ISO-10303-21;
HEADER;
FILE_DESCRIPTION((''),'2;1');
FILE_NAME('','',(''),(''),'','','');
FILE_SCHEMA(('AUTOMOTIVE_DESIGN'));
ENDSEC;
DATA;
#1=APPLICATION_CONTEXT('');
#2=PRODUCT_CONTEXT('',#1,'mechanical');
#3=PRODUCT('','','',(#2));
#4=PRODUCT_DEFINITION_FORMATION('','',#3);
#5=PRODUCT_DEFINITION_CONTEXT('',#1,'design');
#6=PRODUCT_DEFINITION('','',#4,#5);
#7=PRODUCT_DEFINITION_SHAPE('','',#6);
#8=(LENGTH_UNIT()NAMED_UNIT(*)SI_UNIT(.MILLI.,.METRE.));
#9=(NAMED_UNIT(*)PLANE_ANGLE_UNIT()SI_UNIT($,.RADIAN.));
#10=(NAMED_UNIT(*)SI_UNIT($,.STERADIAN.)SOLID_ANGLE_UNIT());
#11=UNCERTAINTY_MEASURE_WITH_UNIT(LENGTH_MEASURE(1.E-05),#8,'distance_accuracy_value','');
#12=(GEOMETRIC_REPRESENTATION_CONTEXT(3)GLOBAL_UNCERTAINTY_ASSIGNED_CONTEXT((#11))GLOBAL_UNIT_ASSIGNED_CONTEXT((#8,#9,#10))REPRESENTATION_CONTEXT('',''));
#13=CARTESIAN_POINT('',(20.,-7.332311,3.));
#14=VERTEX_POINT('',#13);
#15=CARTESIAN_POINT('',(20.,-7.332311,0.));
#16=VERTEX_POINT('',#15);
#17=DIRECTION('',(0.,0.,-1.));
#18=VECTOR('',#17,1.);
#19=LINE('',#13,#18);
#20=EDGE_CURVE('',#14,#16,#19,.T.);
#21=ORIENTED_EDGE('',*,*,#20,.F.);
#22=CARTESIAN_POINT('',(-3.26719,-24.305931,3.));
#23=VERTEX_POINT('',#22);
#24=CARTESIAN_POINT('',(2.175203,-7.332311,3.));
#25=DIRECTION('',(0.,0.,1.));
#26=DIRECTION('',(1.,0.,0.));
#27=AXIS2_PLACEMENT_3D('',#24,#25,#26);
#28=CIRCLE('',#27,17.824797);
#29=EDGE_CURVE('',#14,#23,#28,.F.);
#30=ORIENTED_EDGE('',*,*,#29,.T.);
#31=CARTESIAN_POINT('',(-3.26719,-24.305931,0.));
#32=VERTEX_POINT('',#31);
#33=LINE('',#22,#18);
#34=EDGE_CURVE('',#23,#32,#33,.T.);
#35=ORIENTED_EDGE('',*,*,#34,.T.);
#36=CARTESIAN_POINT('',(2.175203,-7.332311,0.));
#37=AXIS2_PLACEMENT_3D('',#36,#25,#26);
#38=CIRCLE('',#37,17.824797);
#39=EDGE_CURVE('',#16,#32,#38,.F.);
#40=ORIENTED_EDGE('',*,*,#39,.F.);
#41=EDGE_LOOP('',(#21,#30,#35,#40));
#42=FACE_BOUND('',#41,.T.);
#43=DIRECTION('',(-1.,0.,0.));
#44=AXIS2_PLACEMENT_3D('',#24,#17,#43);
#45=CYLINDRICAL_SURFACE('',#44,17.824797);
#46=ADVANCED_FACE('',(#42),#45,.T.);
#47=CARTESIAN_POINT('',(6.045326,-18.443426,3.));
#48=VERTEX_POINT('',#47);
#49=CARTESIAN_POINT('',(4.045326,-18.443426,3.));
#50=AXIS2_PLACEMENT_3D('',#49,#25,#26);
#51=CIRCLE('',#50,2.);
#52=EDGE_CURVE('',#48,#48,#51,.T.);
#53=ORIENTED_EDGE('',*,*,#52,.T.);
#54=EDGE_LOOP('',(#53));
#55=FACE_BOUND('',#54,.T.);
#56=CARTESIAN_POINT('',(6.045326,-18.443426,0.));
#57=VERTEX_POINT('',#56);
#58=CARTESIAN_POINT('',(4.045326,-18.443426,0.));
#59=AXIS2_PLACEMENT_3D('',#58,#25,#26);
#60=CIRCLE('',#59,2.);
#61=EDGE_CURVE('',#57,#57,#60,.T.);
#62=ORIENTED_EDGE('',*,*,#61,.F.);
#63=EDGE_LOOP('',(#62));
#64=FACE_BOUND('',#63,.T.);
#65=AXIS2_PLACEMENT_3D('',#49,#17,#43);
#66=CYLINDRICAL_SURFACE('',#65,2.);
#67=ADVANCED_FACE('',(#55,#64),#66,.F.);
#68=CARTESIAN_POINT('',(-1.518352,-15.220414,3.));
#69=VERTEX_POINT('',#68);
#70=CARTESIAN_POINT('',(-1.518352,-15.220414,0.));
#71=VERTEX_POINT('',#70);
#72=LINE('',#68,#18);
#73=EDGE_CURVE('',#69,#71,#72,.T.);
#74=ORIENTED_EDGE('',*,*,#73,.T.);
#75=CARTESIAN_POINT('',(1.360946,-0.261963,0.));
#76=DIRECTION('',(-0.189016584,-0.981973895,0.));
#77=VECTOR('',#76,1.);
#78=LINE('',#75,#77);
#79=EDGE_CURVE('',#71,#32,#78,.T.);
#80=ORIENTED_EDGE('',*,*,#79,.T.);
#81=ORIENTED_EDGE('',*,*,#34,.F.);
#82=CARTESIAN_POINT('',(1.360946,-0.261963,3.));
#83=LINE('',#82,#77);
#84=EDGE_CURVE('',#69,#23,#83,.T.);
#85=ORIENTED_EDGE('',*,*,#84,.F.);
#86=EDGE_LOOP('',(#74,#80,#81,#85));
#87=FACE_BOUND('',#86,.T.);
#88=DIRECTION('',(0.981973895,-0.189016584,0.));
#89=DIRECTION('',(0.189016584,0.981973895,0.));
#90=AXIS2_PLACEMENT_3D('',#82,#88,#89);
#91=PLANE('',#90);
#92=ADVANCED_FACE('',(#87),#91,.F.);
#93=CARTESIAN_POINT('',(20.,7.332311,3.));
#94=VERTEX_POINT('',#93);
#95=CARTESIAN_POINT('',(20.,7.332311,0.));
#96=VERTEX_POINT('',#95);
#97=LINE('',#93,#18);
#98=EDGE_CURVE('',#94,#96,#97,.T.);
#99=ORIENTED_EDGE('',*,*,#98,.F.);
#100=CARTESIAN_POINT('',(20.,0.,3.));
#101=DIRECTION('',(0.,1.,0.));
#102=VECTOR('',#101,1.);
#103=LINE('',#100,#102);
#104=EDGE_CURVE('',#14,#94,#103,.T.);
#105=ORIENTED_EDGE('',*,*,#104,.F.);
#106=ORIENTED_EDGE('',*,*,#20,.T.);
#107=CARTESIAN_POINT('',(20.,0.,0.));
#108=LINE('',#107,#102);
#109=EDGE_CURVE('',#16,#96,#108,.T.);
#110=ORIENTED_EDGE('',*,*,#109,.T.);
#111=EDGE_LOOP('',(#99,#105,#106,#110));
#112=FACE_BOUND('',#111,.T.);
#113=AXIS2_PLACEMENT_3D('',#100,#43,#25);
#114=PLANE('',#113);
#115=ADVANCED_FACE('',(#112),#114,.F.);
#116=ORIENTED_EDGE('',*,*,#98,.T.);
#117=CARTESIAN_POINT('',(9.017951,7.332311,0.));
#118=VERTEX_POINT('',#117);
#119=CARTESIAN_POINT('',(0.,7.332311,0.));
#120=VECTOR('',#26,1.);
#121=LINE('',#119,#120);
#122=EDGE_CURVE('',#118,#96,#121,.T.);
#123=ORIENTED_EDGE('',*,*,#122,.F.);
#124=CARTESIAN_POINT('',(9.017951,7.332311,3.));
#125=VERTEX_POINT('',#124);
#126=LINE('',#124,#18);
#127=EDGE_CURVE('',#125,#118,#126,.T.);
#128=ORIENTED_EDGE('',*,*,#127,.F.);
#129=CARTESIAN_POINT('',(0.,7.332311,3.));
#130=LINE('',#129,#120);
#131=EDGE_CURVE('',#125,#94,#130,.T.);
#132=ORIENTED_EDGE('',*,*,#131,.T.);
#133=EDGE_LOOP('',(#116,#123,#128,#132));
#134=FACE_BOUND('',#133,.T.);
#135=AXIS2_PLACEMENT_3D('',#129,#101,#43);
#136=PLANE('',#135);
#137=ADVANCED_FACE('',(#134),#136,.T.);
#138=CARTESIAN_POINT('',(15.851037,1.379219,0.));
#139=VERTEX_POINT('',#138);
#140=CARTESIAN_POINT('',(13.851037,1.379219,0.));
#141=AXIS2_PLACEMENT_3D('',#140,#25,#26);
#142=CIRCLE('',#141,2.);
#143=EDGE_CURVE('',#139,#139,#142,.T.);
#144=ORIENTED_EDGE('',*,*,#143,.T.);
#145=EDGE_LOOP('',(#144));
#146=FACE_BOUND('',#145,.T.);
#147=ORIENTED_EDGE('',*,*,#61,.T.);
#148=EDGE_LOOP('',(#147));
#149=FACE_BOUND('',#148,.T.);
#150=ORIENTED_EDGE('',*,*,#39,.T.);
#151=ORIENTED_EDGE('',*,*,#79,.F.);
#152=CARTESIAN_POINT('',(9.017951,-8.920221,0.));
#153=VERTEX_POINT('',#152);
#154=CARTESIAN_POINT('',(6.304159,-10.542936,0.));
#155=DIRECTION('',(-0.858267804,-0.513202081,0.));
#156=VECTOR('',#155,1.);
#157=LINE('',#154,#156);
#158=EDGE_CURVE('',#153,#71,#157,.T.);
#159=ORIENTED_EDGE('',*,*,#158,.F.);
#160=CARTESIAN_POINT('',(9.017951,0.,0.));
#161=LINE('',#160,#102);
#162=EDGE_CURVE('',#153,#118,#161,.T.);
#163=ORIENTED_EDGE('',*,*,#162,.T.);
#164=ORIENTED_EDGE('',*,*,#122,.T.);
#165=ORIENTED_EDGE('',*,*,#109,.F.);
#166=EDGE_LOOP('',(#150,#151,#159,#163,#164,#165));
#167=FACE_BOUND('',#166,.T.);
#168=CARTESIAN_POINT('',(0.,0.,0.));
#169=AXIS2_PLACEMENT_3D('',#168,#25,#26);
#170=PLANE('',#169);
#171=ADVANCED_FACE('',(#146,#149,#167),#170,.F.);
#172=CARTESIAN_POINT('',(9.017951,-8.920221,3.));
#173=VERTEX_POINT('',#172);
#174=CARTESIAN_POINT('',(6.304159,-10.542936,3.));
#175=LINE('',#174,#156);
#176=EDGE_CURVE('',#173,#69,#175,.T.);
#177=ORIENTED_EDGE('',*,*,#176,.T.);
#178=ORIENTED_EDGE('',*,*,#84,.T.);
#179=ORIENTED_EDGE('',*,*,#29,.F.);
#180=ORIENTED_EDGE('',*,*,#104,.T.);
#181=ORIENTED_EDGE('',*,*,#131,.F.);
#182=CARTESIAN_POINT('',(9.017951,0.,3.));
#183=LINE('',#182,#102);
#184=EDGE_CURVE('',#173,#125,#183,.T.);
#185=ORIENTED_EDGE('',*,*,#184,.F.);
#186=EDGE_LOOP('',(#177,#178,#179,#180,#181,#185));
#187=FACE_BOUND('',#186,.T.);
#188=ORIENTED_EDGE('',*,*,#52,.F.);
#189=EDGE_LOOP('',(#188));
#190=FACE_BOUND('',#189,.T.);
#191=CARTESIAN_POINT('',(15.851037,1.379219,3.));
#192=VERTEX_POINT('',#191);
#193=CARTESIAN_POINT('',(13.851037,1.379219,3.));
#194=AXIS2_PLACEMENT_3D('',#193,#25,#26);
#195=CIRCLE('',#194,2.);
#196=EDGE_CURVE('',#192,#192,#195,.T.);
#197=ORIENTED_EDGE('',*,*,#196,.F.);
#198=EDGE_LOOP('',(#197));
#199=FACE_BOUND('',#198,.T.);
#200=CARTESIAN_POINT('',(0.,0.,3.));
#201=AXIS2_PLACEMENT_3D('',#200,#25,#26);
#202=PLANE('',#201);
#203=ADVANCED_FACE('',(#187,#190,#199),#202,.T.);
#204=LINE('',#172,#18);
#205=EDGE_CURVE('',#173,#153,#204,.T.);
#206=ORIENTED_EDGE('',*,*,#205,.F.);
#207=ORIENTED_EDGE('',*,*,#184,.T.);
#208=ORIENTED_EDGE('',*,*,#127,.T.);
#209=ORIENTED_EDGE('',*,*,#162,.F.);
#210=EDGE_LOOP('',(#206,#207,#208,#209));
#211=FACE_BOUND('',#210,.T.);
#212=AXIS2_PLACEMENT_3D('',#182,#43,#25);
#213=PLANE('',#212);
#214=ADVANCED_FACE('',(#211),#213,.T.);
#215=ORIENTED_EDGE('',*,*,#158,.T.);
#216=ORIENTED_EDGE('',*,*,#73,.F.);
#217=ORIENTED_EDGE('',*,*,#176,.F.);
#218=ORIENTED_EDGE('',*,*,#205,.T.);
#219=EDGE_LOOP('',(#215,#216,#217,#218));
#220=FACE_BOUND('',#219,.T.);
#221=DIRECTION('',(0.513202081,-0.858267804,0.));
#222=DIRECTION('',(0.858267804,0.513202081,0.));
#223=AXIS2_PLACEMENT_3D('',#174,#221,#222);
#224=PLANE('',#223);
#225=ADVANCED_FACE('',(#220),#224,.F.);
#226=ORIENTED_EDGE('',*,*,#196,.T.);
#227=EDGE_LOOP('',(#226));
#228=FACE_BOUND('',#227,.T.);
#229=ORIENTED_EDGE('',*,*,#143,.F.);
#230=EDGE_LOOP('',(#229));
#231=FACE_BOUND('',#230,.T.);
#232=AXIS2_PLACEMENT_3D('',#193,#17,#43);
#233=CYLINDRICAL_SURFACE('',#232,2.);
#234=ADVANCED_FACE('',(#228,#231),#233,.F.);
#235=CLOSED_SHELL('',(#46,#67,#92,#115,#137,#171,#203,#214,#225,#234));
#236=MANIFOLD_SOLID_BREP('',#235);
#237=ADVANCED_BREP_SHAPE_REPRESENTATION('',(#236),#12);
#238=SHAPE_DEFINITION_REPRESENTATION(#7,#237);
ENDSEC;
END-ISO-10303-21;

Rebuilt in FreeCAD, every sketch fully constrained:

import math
import FreeCAD as App
import Part
import Sketcher
from FreeCAD import Vector

doc = App.newDocument("Part")
body = doc.addObject("PartDesign::Body", "Body")

# Sketch on XY plane
sketch1 = doc.addObject("Sketcher::SketchObject", "Sketch")
body.addObject(sketch1)
sketch1.AttachmentSupport = (doc.XY_Plane, [""])
sketch1.MapMode = "FlatFace"
sketch1.addGeometry([
    Part.LineSegment(Vector(20, 7.3, 0), Vector(9, 7.3, 0)),  # 0
    Part.LineSegment(Vector(9, 7.3, 0), Vector(9, -8.9, 0)),  # 1
    Part.LineSegment(Vector(9, -8.9, 0), Vector(-1.5, -15.2, 0)),  # 2
    Part.LineSegment(Vector(-1.5, -15.2, 0), Vector(-3.3, -24.3, 0)),  # 3
    Part.ArcOfCircle(Part.Circle(Vector(2.2, -7.3, 0), Vector(0, 0, 1), 17.8), math.radians(-108), math.radians(0)),  # 4
    Part.LineSegment(Vector(20, -7.3, 0), Vector(20, 7.3, 0)),  # 5
    Part.Circle(Vector(13.9, 1.4, 0), Vector(0, 0, 1), 2),  # 6
    Part.Circle(Vector(4, -18.4, 0), Vector(0, 0, 1), 2),  # 7
], False)
sketch1.addConstraint([
    Sketcher.Constraint("Coincident", 0, 2, 1, 1),
    Sketcher.Constraint("Coincident", 1, 2, 2, 1),
    Sketcher.Constraint("Coincident", 2, 2, 3, 1),
    Sketcher.Constraint("Coincident", 3, 2, 4, 1),
    Sketcher.Constraint("Tangent", 4, 2, 5, 1),
    Sketcher.Constraint("Coincident", 5, 2, 0, 1),
    Sketcher.Constraint("Horizontal", 0),
    Sketcher.Constraint("Vertical", 1),
    Sketcher.Constraint("Vertical", 5),
    Sketcher.Constraint("Equal", 6, 7),
    Sketcher.Constraint("Diameter", 6, 4.0),
    Sketcher.Constraint("DistanceX", -1, 1, 4, 2, 20.0),
    Sketcher.Constraint("Radius", 4, 17.824797),
    Sketcher.Constraint("Distance", 3, 9.2523),
    Sketcher.Constraint("DistanceX", 0, 2, 0, 1, 10.982049),
    Sketcher.Constraint("Distance", 2, 12.276242),
    Sketcher.Constraint("DistanceY", 1, 2, 1, 1, 16.252533),
    Sketcher.Constraint("DistanceY", 5, 1, 5, 2, 14.664622),
    Sketcher.Constraint("DistanceY", 4, 3, -1, 1, 7.332311),
    Sketcher.Constraint("DistanceY", -1, 1, 6, 3, 1.379219),
    Sketcher.Constraint("DistanceX", 3, 2, -1, 1, 3.26719),
    Sketcher.Constraint("DistanceX", 7, 3, 6, 3, 9.80571),
    Sketcher.Constraint("DistanceX", 2, 2, 7, 3, 5.563679),
    Sketcher.Constraint("DistanceY", 7, 3, 2, 2, 3.223011),
])
pad1 = doc.addObject("PartDesign::Pad", "Pad")
body.addObject(pad1)
pad1.Profile = sketch1
pad1.Length = 3

doc.recompute()
